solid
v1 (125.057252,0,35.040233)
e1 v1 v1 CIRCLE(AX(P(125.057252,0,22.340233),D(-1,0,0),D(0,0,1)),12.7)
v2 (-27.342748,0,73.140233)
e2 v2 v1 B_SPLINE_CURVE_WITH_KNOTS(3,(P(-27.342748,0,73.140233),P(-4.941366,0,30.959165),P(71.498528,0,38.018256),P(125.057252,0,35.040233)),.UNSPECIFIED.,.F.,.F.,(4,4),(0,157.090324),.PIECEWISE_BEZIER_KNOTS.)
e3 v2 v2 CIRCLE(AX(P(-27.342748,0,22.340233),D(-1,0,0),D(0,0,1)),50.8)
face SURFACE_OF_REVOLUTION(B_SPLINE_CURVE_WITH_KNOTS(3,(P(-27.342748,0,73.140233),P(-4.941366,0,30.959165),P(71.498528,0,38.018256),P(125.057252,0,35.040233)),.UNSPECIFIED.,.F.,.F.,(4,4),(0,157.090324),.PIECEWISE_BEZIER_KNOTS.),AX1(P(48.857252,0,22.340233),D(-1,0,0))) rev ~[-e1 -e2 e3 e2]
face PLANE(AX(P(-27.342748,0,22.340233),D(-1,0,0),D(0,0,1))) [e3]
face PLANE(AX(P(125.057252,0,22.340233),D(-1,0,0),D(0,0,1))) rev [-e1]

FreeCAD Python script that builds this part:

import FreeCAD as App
import Part
import Sketcher
from FreeCAD import Vector
Q = App.Units.Quantity

doc = App.newDocument("Part")
body = doc.addObject("PartDesign::Body", "Body")

# Sketch on XZ plane
sketch1 = doc.addObject("Sketcher::SketchObject", "Sketch")
body.addObject(sketch1)
sketch1.AttachmentSupport = (doc.XZ_Plane, [""])
sketch1.MapMode = "FlatFace"
sketch1.addGeometry([
    Part.LineSegment(Vector(-27.342748, 22.340233, 0), Vector(125.057252, 22.340233, 0)),
    Part.LineSegment(Vector(125.057252, 22.340233, 0), Vector(125.057252, 35.040233, 0)),
    Part.BSplineCurve([Vector(-27.342748, 73.140233, 0), Vector(-4.941366, 30.959165, 0), Vector(71.498528, 38.018256, 0), Vector(125.057252, 35.040233, 0)], [4, 4], [0, 157.090324], False, 3, [1, 1, 1, 1], False),
    Part.LineSegment(Vector(-27.342748, 73.140233, 0), Vector(-27.342748, 22.340233, 0)),
], False)
sketch1.addGeometry(Part.LineSegment(Vector(125.057252, 22.340233, 0), Vector(-27.342748, 22.340233, 0)), True)  # axis
sketch1.addConstraint([
    Sketcher.Constraint("Block", 2),
    Sketcher.Constraint("Coincident", 0, 2, 1, 1),
    Sketcher.Constraint("Coincident", 1, 2, 2, 2),
    Sketcher.Constraint("Coincident", 2, 1, 3, 1),
    Sketcher.Constraint("Coincident", 3, 2, 0, 1),
    Sketcher.Constraint("Horizontal", 0),
    Sketcher.Constraint("Vertical", 1),
    Sketcher.Constraint("Vertical", 3),
    Sketcher.Constraint("Horizontal", 4),
    Sketcher.Constraint("Coincident", 4, 1, 0, 2),
    Sketcher.Constraint("Equal", 0, 4),
    Sketcher.Constraint("DistanceY", 3, 2, 3, 1, Q("2 in")),
])
revolution = doc.addObject("PartDesign::Revolution", "Revolution")
body.addObject(revolution)
revolution.Profile = sketch1
revolution.ReferenceAxis = (sketch1, ["Axis0"])
revolution.Angle = 360

doc.recompute()
